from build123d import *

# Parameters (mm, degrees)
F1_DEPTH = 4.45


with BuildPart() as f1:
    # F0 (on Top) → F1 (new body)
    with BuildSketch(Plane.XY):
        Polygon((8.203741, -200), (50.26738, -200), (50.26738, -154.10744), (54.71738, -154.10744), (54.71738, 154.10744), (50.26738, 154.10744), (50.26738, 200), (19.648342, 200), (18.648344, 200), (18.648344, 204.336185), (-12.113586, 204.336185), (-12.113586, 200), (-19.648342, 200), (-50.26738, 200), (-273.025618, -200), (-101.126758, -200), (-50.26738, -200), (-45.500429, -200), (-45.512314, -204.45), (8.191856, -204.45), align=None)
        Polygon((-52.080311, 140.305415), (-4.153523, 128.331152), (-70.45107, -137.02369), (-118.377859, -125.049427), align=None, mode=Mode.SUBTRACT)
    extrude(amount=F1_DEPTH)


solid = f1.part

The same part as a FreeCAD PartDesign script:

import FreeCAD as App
import Part
import Sketcher
from FreeCAD import Vector


def add_polygon(sketch, points):
    """Adds a closed chain of lines whose ends are joined by coincident constraints."""
    first, n = sketch.GeometryCount, len(points)
    for a, b in zip(points, points[1:] + points[:1]):
        sketch.addGeometry(Part.LineSegment(App.Vector(*a, 0), App.Vector(*b, 0)), False)
    for i in range(n):
        sketch.addConstraint(Sketcher.Constraint("Coincident", first + i, 2, first + (i + 1) % n, 1))

doc = App.newDocument("Part")
body = doc.addObject("PartDesign::Body", "Body")

# Sketch on XY plane
sketch1 = doc.addObject("Sketcher::SketchObject", "Sketch")
body.addObject(sketch1)
sketch1.AttachmentSupport = (doc.XY_Plane, [""])
sketch1.MapMode = "FlatFace"
add_polygon(sketch1, [(8.2, -200), (50.3, -200), (50.3, -154.1), (54.7, -154.1), (54.7, 154.1), (50.3, 154.1), (50.3, 200), (18.6, 200), (18.6, 204.3), (-12.1, 204.3), (-12.1, 200), (-50.3, 200), (-273, -200), (-45.5, -200), (-45.5, -204.4), (8.2, -204.4)])  # lines 0-15
add_polygon(sketch1, [(-118.4, -125), (-52.1, 140.3), (-4.2, 128.3), (-70.5, -137)])  # lines 16-19
sketch1.addConstraint([
    Sketcher.Constraint("Horizontal", 0),
    Sketcher.Constraint("Vertical", 1),
    Sketcher.Constraint("Horizontal", 2),
    Sketcher.Constraint("Vertical", 3),
    Sketcher.Constraint("Horizontal", 4),
    Sketcher.Constraint("Vertical", 5),
    Sketcher.Constraint("Horizontal", 6),
    Sketcher.Constraint("Vertical", 7),
    Sketcher.Constraint("Horizontal", 8),
    Sketcher.Constraint("Vertical", 9),
    Sketcher.Constraint("Horizontal", 10),
    Sketcher.Constraint("Horizontal", 12),
    Sketcher.Constraint("Horizontal", 14),
    Sketcher.Constraint("Symmetric", 0, 2, 10, 2, -1, 1),
    Sketcher.Constraint("Symmetric", 5, 2, 10, 2, -2),
    Sketcher.Constraint("Parallel", 13, 15),
    Sketcher.Constraint("Perpendicular", 16, 17),
    Sketcher.Constraint("Perpendicular", 17, 18),
    Sketcher.Constraint("Perpendicular", 18, 19),
    Sketcher.Constraint("Horizontal", 0, 2, 11, 2),
    Sketcher.Constraint("Equal", 1, 5),
    Sketcher.Constraint("DistanceY", 0, 2, -1, 1, 200.0),
    Sketcher.Constraint("Distance", 17, 49.4),
    Sketcher.Constraint("DistanceX", 2, 1, 2, 2, 4.45),
    Sketcher.Constraint("DistanceY", 13, 2, -1, 1, 204.45),
    Sketcher.Constraint("DistanceX", 11, 2, 0, 2, 323.292998),
    Sketcher.Constraint("DistanceX", 0, 1, 0, 2, 42.063639),
    Sketcher.Constraint("DistanceX", 8, 2, 8, 1, 30.76193),
    Sketcher.Constraint("DistanceX", 12, 1, 12, 2, 227.525189),
    Sketcher.Constraint("DistanceY", 1, 1, 1, 2, 45.89256),
    Sketcher.Constraint("DistanceX", 19, 2, 15, 2, 126.5816),
    Sketcher.Constraint("Distance", 16, 273.51153),
    Sketcher.Constraint("DistanceX", 6, 2, 6, 1, 31.619036),
    Sketcher.Constraint("DistanceX", 10, 2, 10, 1, 38.153794),
    Sketcher.Constraint("DistanceY", 7, 1, 7, 2, 4.336185),
    Sketcher.Constraint("DistanceX", 16, 2, -1, 1, 52.080311),
    Sketcher.Constraint("DistanceY", -1, 1, 17, 2, 128.331152),
    Sketcher.Constraint("DistanceX", 13, 2, -1, 1, 45.512314),
])
pad1 = doc.addObject("PartDesign::Pad", "Pad")
body.addObject(pad1)
pad1.Profile = sketch1
pad1.Length = 4.45

doc.recompute()
